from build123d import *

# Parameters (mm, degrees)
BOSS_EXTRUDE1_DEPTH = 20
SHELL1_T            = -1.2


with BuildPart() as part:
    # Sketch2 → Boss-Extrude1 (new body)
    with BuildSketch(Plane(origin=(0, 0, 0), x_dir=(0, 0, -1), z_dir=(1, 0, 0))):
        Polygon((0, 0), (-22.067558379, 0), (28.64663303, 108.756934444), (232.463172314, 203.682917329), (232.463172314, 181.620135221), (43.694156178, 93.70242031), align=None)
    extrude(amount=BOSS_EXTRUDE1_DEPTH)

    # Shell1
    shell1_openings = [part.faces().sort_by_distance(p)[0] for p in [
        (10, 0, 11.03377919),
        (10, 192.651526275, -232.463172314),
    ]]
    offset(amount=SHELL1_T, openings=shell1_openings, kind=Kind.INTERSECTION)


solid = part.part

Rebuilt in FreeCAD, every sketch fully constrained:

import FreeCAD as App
import Part
import Sketcher

V = App.Vector
Q = App.Units.Quantity


def faces_at(feature, points):
    """Names of the faces that lie closest to the given points."""
    faces = feature.Shape.Faces
    near = lambda p: min(range(len(faces)), key=lambda i: faces[i].distToShape(Part.Vertex(*p))[0])
    return sorted({f"Face{near(p) + 1}" for p in points})


def add_polygon(sketch, points):
    """Adds a closed chain of lines whose ends are joined by coincident constraints."""
    first, n = sketch.GeometryCount, len(points)
    for a, b in zip(points, points[1:] + points[:1]):
        sketch.addGeometry(Part.LineSegment(App.Vector(*a, 0), App.Vector(*b, 0)), False)
    for i in range(n):
        sketch.addConstraint(Sketcher.Constraint("Coincident", first + i, 2, first + (i + 1) % n, 1))

doc = App.newDocument("Part")
body = doc.addObject("PartDesign::Body", "Body")

# Sketch on YZ plane
sketch1 = body.newObject("Sketcher::SketchObject", "Sketch")
sketch1.AttachmentSupport = (doc.getObject("YZ_Plane"), [""])
sketch1.MapMode = "FlatFace"
add_polygon(sketch1, [(0, 22), (0, 0), (94, -44), (182, -232), (204, -232), (109, -29)])  # lines 0-5
sketch1.addConstraint([
    Sketcher.Constraint("Vertical", 0),
    Sketcher.Constraint("Horizontal", 3),
    Sketcher.Constraint("Coincident", 0, 2, -1, 1),
    Sketcher.Constraint("Parallel", 2, 4),
    Sketcher.Constraint("Parallel", 1, 5),
    Sketcher.Constraint("Angle", 1, Q("-25 deg")),
    Sketcher.Constraint("Distance", 5, Q("120 mm")),
    Sketcher.Constraint("DistanceY", 0, 2, 0, 1, Q("22.067558 mm")),
    Sketcher.Constraint("DistanceX", 4, 2, 2, 2, Q("72.863201 mm")),
    Sketcher.Constraint("Distance", 1, Q("103.389182 mm")),
    Sketcher.Constraint("DistanceX", 3, 1, 3, 2, Q("22.062782 mm")),
])
pad1 = body.newObject("PartDesign::Pad", "Pad")
pad1.Profile = sketch1
pad1.Length = 20
doc.recompute()

thickness = body.newObject("PartDesign::Thickness", "Thickness")
thickness.Base = (pad1, faces_at(pad1, [(10, 0, 11.034), (10, 192.652, -232.463)]))
thickness.Value = 1.2
thickness.Reversed = True
thickness.Join = "Intersection"

doc.recompute()
